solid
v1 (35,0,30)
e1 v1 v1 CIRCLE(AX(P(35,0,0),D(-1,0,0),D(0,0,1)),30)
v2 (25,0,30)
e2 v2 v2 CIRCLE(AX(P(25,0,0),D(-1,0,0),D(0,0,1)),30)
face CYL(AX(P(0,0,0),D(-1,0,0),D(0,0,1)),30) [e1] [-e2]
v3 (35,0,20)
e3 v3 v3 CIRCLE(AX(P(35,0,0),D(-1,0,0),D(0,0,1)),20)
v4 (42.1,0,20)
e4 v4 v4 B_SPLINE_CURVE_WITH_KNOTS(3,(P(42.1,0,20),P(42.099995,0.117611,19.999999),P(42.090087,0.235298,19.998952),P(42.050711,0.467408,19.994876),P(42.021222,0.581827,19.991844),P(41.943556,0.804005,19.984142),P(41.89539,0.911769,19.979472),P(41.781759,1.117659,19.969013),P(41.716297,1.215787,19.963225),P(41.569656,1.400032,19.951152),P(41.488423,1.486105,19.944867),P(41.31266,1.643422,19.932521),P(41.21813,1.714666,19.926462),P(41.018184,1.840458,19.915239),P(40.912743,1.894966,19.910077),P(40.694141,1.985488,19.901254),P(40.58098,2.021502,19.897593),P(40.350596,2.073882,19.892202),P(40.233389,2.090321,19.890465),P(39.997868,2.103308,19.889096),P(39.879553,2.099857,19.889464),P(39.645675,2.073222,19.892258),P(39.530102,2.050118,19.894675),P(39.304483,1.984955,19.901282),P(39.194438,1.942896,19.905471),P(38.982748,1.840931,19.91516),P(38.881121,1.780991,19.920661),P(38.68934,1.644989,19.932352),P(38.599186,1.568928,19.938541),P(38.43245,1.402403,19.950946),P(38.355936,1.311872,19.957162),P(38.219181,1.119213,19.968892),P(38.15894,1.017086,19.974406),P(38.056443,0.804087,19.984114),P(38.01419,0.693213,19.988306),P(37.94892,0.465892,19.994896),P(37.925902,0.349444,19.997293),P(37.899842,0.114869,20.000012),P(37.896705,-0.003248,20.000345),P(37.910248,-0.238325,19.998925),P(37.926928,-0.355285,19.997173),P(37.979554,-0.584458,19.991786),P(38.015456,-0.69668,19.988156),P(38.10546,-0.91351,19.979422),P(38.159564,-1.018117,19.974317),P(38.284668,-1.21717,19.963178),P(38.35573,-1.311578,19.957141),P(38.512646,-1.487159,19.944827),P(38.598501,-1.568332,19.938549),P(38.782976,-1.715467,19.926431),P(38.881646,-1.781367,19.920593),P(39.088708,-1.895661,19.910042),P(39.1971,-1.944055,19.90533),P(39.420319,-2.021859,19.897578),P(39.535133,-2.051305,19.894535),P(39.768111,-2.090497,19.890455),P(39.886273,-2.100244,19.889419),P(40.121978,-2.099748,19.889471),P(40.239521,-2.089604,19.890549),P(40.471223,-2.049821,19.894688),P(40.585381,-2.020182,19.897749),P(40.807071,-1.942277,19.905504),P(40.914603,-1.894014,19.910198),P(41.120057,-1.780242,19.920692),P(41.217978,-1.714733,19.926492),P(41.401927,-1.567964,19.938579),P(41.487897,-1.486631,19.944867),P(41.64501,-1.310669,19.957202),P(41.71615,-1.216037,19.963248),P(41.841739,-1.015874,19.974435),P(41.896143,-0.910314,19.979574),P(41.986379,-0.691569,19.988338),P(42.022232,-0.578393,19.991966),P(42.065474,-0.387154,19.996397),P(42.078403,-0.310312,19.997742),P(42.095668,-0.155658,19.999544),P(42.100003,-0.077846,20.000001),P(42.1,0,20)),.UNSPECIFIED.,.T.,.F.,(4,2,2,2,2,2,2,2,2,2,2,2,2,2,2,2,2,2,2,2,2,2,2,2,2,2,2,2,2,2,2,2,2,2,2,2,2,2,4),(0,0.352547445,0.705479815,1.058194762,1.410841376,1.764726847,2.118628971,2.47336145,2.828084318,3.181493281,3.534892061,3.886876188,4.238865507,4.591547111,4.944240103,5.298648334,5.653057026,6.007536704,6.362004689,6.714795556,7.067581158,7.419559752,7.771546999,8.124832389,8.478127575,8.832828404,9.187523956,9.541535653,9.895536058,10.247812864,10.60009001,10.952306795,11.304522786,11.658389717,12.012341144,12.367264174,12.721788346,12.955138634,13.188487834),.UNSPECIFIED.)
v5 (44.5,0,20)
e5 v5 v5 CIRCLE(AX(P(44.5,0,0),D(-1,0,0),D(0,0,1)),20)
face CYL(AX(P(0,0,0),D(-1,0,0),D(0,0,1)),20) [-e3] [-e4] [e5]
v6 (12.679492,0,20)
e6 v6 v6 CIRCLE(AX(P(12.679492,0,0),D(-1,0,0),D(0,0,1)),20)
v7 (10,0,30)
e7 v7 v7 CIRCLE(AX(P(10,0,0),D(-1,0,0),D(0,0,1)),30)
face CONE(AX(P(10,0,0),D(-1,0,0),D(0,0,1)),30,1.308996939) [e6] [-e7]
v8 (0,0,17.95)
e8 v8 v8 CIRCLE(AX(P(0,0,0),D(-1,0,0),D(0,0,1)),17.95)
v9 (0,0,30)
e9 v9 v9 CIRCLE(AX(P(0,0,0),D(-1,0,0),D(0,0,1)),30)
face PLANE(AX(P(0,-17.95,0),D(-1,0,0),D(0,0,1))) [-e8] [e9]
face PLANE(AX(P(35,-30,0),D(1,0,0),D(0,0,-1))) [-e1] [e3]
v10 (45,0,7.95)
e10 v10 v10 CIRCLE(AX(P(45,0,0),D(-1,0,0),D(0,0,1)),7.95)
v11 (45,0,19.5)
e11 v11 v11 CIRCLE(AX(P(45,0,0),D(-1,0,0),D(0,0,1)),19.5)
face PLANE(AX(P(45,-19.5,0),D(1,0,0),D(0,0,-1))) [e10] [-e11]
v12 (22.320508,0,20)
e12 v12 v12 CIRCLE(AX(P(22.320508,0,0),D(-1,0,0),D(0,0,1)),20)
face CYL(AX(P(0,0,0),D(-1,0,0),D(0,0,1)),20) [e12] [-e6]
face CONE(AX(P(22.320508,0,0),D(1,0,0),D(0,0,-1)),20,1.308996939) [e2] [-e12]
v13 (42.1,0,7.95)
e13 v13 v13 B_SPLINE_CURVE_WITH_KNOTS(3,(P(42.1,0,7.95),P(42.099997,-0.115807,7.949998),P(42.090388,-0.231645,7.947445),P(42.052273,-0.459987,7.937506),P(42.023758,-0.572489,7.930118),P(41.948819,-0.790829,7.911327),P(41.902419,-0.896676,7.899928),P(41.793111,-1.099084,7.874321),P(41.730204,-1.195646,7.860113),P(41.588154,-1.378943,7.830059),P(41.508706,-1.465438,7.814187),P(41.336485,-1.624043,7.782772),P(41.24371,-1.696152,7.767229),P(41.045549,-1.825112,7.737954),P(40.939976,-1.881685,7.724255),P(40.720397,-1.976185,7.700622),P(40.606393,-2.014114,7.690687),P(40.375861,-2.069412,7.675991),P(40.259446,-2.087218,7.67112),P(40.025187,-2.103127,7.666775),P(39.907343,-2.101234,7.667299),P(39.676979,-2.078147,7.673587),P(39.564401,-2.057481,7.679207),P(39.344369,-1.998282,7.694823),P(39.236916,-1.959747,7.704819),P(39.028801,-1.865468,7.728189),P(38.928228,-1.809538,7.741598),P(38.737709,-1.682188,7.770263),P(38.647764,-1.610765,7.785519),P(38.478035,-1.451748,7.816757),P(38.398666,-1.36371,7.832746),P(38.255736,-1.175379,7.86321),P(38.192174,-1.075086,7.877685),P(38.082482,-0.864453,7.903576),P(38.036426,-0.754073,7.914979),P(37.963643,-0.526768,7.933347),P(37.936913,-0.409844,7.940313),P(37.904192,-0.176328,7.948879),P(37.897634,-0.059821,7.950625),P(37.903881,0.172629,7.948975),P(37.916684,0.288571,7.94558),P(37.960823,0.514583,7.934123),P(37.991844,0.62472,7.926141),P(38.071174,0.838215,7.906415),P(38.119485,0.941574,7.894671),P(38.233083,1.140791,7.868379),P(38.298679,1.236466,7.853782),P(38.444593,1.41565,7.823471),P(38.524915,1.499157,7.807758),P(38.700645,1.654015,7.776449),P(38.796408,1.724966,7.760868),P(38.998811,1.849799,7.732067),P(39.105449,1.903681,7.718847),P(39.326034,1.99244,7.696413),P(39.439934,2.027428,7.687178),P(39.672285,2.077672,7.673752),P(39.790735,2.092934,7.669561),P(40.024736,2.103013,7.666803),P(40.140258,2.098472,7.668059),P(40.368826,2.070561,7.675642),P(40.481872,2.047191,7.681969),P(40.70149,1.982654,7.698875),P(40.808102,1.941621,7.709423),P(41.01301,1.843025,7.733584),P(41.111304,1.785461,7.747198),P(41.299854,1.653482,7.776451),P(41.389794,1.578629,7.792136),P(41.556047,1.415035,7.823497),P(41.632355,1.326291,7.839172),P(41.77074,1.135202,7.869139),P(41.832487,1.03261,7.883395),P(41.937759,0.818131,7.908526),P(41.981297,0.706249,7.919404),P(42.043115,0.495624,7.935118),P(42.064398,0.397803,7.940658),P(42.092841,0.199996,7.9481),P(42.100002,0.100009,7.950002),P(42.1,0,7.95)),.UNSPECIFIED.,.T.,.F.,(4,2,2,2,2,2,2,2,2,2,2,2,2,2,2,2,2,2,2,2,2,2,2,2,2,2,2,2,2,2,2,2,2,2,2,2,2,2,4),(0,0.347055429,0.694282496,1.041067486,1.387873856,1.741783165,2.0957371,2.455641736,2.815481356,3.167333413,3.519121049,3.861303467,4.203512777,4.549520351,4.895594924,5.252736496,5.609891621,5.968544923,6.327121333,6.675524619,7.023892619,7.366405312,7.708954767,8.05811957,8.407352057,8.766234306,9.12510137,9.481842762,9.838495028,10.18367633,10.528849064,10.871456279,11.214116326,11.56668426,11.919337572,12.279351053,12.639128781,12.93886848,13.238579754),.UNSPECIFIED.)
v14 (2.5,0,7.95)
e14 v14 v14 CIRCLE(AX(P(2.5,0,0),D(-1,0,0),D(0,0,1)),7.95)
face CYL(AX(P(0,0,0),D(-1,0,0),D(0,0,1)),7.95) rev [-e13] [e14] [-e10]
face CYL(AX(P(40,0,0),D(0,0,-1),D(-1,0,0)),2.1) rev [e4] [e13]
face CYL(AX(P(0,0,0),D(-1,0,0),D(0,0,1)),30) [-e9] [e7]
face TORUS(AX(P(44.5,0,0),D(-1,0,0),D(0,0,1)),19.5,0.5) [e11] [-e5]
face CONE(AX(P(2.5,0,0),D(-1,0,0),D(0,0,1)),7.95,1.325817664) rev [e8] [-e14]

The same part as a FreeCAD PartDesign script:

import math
import FreeCAD as App
import Part
import Sketcher
Q = App.Units.Quantity


def add_polygon(sketch, points):
    """Adds a closed chain of lines whose ends are joined by coincident constraints."""
    first, n = sketch.GeometryCount, len(points)
    for a, b in zip(points, points[1:] + points[:1]):
        sketch.addGeometry(Part.LineSegment(App.Vector(*a, 0), App.Vector(*b, 0)), False)
    for i in range(n):
        sketch.addConstraint(Sketcher.Constraint("Coincident", first + i, 2, first + (i + 1) % n, 1))

doc = App.newDocument("Part")
body = doc.addObject("PartDesign::Body", "Body")

sketch1 = doc.addObject("Sketcher::SketchObject", "Sketch")
body.addObject(sketch1)
sketch1.AttachmentSupport = (doc.XY_Plane, [""])
sketch1.MapMode = "FlatFace"
sketch1.addGeometry(Part.LineSegment(App.Vector(0, -17.95, 0), App.Vector(0, -30, 0)), False)
sketch1.addGeometry(Part.LineSegment(App.Vector(0, -30, 0), App.Vector(10, -30, 0)), False)
sketch1.addGeometry(Part.LineSegment(App.Vector(10, -30, 0), App.Vector(12.68, -20, 0)), False)
sketch1.addGeometry(Part.LineSegment(App.Vector(12.68, -20, 0), App.Vector(22.32, -20, 0)), False)
sketch1.addGeometry(Part.LineSegment(App.Vector(22.32, -20, 0), App.Vector(25, -30, 0)), False)
sketch1.addGeometry(Part.LineSegment(App.Vector(25, -30, 0), App.Vector(35, -30, 0)), False)
sketch1.addGeometry(Part.LineSegment(App.Vector(35, -30, 0), App.Vector(35, -20, 0)), False)
sketch1.addGeometry(Part.LineSegment(App.Vector(35, -20, 0), App.Vector(44.5, -20, 0)), False)
sketch1.addGeometry(Part.ArcOfCircle(Part.Circle(App.Vector(44.5, -19.5, 0), App.Vector(0, 0, 1), 0.5), math.radians(-90), math.radians(0)), False)
sketch1.addGeometry(Part.LineSegment(App.Vector(45, -19.5, 0), App.Vector(45, -7.95, 0)), False)
sketch1.addGeometry(Part.LineSegment(App.Vector(45, -7.95, 0), App.Vector(2.5, -7.95, 0)), False)
sketch1.addGeometry(Part.LineSegment(App.Vector(2.5, -7.95, 0), App.Vector(0, -17.95, 0)), False)
sketch1.addConstraint(Sketcher.Constraint("Coincident", 0, 2, 1, 1))
sketch1.addConstraint(Sketcher.Constraint("Coincident", 1, 2, 2, 1))
sketch1.addConstraint(Sketcher.Constraint("Coincident", 2, 2, 3, 1))
sketch1.addConstraint(Sketcher.Constraint("Coincident", 3, 2, 4, 1))
sketch1.addConstraint(Sketcher.Constraint("Coincident", 4, 2, 5, 1))
sketch1.addConstraint(Sketcher.Constraint("Coincident", 5, 2, 6, 1))
sketch1.addConstraint(Sketcher.Constraint("Coincident", 6, 2, 7, 1))
sketch1.addConstraint(Sketcher.Constraint("Tangent", 7, 2, 8, 1))
sketch1.addConstraint(Sketcher.Constraint("Tangent", 8, 2, 9, 1))
sketch1.addConstraint(Sketcher.Constraint("Coincident", 9, 2, 10, 1))
sketch1.addConstraint(Sketcher.Constraint("Coincident", 10, 2, 11, 1))
sketch1.addConstraint(Sketcher.Constraint("Coincident", 11, 2, 0, 1))
sketch1.addConstraint(Sketcher.Constraint("Vertical", 0))
sketch1.addConstraint(Sketcher.Constraint("Horizontal", 1))
sketch1.addConstraint(Sketcher.Constraint("Horizontal", 3))
sketch1.addConstraint(Sketcher.Constraint("Horizontal", 5))
sketch1.addConstraint(Sketcher.Constraint("Vertical", 6))
sketch1.addConstraint(Sketcher.Constraint("Horizontal", 7))
sketch1.addConstraint(Sketcher.Constraint("Vertical", 9))
sketch1.addConstraint(Sketcher.Constraint("Horizontal", 10))
sketch1.addConstraint(Sketcher.Constraint("PointOnObject", 0, 2, -2))
sketch1.addConstraint(Sketcher.Constraint("Horizontal", 1, 2, 4, 2))
sketch1.addConstraint(Sketcher.Constraint("Horizontal", 3, 2, 6, 2))
sketch1.addConstraint(Sketcher.Constraint("Equal", 1, 5))
sketch1.addConstraint(Sketcher.Constraint("Equal", 5, 6))
sketch1.addConstraint(Sketcher.Constraint("Equal", 2, 4))
sketch1.addConstraint(Sketcher.Constraint("Radius", 8, Q("0.5 mm")))
sketch1.addConstraint(Sketcher.Constraint("DistanceX", 1, 1, 1, 2, Q("10 mm")))
sketch1.addConstraint(Sketcher.Constraint("Angle", 2, Q("75 deg")))
sketch1.addConstraint(Sketcher.Constraint("DistanceX", 7, 1, 7, 2, Q("9.5 mm")))
sketch1.addConstraint(Sketcher.Constraint("DistanceX", 10, 2, 10, 1, Q("42.5 mm")))
sketch1.addConstraint(Sketcher.Constraint("DistanceY", 0, 2, -1, 1, Q("30 mm")))
sketch1.addConstraint(Sketcher.Constraint("DistanceX", -1, 1, 4, 2, Q("25 mm")))
sketch1.addConstraint(Sketcher.Constraint("DistanceY", 11, 2, 10, 2, Q("10 mm")))
sketch1.addConstraint(Sketcher.Constraint("DistanceY", 0, 2, 0, 1, Q("12.05 mm")))
revolution = doc.addObject("PartDesign::Revolution", "Revolution")
body.addObject(revolution)
revolution.Profile = sketch1
revolution.ReferenceAxis = (sketch1, ["H_Axis"])
revolution.Angle = 360

sketch2 = doc.addObject("Sketcher::SketchObject", "Sketch001")
body.addObject(sketch2)
sketch2.AttachmentSupport = (doc.YZ_Plane, [""])
sketch2.MapMode = "FlatFace"
sketch2.AttachmentOffset = App.Placement(App.Vector(0, 0, 40), App.Rotation())
add_polygon(sketch2, [(0, 30), (0, 0), (2.1, 0), (2.1, 30)])
sketch2.addConstraint(Sketcher.Constraint("Vertical", 0))
sketch2.addConstraint(Sketcher.Constraint("Horizontal", 1))
sketch2.addConstraint(Sketcher.Constraint("Vertical", 2))
sketch2.addConstraint(Sketcher.Constraint("Horizontal", 3))
sketch2.addConstraint(Sketcher.Constraint("Coincident", 0, 2, -1, 1))
sketch2.addConstraint(Sketcher.Constraint("DistanceY", 0, 2, 0, 1, Q("30 mm")))
sketch2.addConstraint(Sketcher.Constraint("DistanceX", 1, 1, 1, 2, Q("2.1 mm")))
groove = doc.addObject("PartDesign::Groove", "Groove")
body.addObject(groove)
groove.Profile = sketch2
groove.ReferenceAxis = (sketch2, ["V_Axis"])
groove.Angle = 360

doc.recompute()
